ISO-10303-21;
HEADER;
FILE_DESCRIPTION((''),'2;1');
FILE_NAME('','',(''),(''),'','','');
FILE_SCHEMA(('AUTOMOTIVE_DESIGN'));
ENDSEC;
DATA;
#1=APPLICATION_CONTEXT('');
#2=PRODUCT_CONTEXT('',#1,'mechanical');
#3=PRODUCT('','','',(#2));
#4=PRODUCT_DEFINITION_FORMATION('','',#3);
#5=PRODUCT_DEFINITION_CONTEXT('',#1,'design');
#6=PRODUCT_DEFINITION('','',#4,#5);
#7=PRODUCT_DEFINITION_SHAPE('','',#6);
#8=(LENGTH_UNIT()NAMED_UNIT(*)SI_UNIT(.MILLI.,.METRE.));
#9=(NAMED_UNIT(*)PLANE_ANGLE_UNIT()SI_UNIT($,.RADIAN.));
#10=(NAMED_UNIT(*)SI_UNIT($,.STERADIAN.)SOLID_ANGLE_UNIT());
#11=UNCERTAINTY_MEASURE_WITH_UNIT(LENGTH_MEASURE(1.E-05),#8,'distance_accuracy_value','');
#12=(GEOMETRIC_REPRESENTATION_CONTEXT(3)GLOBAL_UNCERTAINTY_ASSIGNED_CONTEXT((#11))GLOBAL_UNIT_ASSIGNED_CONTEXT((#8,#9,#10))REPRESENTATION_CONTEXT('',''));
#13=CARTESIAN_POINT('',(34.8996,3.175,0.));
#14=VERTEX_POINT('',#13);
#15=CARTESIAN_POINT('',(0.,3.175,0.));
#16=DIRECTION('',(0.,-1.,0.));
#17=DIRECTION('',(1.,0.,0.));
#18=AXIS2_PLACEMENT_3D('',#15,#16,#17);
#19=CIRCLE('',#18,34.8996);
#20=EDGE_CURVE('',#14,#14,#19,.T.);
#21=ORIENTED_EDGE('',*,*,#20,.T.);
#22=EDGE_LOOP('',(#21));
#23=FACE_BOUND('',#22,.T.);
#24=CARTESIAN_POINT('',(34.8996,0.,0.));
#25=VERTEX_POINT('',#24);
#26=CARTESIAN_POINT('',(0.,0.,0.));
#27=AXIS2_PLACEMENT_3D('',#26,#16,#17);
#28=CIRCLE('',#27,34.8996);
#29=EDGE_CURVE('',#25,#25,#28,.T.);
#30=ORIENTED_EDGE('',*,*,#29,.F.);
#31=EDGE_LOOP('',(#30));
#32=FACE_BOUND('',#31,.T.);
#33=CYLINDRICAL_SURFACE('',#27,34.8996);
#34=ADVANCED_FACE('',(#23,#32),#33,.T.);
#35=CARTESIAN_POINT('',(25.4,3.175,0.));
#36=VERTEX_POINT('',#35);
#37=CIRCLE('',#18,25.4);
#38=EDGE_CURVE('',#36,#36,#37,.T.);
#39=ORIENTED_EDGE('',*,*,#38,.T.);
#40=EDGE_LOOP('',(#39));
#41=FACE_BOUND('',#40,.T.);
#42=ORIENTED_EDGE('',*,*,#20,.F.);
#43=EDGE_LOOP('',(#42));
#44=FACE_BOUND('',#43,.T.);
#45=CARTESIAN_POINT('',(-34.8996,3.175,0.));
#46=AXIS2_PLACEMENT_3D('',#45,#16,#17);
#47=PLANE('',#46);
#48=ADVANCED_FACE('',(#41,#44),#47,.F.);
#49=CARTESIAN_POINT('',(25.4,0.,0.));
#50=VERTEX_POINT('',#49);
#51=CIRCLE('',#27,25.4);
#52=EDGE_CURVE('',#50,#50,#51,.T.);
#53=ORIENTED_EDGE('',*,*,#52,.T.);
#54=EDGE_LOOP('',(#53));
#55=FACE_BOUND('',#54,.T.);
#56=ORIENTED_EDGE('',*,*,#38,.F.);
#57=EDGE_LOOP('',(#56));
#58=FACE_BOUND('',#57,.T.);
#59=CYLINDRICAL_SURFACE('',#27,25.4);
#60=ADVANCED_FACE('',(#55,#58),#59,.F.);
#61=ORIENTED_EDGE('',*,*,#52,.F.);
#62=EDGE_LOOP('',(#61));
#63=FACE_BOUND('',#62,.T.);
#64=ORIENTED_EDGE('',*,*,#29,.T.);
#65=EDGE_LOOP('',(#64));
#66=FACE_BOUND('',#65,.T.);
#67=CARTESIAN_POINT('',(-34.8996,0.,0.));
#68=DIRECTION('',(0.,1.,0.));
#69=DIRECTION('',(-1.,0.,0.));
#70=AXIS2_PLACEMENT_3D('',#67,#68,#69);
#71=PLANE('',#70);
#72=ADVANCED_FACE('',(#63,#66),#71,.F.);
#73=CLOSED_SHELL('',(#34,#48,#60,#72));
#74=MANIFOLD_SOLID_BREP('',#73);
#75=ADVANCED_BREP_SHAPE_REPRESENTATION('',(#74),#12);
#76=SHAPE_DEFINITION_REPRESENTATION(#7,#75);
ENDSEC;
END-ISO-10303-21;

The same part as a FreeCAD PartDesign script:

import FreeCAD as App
import Part
import Sketcher
Q = App.Units.Quantity


def add_polygon(sketch, points):
    """Adds a closed chain of lines whose ends are joined by coincident constraints."""
    first, n = sketch.GeometryCount, len(points)
    for a, b in zip(points, points[1:] + points[:1]):
        sketch.addGeometry(Part.LineSegment(App.Vector(*a, 0), App.Vector(*b, 0)), False)
    for i in range(n):
        sketch.addConstraint(Sketcher.Constraint("Coincident", first + i, 2, first + (i + 1) % n, 1))

doc = App.newDocument("Part")
body = doc.addObject("PartDesign::Body", "Body")

# Sketch on XY plane
sketch1 = doc.addObject("Sketcher::SketchObject", "Sketch")
body.addObject(sketch1)
sketch1.AttachmentSupport = (doc.XY_Plane, [""])
sketch1.MapMode = "FlatFace"
add_polygon(sketch1, [(-34.9, 3.2), (-34.9, 0), (-25.4, 0), (-25.4, 3.2)])  # lines 0-3
sketch1.addConstraint([
    Sketcher.Constraint("Vertical", 0),
    Sketcher.Constraint("Horizontal", 1),
    Sketcher.Constraint("Vertical", 2),
    Sketcher.Constraint("Horizontal", 3),
    Sketcher.Constraint("PointOnObject", 0, 2, -1),
    Sketcher.Constraint("DistanceX", 1, 2, -1, 1, Q("1 in")),
    Sketcher.Constraint("DistanceX", 1, 1, 1, 2, Q("0.374 in")),
    Sketcher.Constraint("DistanceY", 0, 2, 0, 1, Q("0.125 in")),
])
revolution = doc.addObject("PartDesign::Revolution", "Revolution")
body.addObject(revolution)
revolution.Profile = sketch1
revolution.ReferenceAxis = (sketch1, ["V_Axis"])
revolution.Angle = 360

doc.recompute()
